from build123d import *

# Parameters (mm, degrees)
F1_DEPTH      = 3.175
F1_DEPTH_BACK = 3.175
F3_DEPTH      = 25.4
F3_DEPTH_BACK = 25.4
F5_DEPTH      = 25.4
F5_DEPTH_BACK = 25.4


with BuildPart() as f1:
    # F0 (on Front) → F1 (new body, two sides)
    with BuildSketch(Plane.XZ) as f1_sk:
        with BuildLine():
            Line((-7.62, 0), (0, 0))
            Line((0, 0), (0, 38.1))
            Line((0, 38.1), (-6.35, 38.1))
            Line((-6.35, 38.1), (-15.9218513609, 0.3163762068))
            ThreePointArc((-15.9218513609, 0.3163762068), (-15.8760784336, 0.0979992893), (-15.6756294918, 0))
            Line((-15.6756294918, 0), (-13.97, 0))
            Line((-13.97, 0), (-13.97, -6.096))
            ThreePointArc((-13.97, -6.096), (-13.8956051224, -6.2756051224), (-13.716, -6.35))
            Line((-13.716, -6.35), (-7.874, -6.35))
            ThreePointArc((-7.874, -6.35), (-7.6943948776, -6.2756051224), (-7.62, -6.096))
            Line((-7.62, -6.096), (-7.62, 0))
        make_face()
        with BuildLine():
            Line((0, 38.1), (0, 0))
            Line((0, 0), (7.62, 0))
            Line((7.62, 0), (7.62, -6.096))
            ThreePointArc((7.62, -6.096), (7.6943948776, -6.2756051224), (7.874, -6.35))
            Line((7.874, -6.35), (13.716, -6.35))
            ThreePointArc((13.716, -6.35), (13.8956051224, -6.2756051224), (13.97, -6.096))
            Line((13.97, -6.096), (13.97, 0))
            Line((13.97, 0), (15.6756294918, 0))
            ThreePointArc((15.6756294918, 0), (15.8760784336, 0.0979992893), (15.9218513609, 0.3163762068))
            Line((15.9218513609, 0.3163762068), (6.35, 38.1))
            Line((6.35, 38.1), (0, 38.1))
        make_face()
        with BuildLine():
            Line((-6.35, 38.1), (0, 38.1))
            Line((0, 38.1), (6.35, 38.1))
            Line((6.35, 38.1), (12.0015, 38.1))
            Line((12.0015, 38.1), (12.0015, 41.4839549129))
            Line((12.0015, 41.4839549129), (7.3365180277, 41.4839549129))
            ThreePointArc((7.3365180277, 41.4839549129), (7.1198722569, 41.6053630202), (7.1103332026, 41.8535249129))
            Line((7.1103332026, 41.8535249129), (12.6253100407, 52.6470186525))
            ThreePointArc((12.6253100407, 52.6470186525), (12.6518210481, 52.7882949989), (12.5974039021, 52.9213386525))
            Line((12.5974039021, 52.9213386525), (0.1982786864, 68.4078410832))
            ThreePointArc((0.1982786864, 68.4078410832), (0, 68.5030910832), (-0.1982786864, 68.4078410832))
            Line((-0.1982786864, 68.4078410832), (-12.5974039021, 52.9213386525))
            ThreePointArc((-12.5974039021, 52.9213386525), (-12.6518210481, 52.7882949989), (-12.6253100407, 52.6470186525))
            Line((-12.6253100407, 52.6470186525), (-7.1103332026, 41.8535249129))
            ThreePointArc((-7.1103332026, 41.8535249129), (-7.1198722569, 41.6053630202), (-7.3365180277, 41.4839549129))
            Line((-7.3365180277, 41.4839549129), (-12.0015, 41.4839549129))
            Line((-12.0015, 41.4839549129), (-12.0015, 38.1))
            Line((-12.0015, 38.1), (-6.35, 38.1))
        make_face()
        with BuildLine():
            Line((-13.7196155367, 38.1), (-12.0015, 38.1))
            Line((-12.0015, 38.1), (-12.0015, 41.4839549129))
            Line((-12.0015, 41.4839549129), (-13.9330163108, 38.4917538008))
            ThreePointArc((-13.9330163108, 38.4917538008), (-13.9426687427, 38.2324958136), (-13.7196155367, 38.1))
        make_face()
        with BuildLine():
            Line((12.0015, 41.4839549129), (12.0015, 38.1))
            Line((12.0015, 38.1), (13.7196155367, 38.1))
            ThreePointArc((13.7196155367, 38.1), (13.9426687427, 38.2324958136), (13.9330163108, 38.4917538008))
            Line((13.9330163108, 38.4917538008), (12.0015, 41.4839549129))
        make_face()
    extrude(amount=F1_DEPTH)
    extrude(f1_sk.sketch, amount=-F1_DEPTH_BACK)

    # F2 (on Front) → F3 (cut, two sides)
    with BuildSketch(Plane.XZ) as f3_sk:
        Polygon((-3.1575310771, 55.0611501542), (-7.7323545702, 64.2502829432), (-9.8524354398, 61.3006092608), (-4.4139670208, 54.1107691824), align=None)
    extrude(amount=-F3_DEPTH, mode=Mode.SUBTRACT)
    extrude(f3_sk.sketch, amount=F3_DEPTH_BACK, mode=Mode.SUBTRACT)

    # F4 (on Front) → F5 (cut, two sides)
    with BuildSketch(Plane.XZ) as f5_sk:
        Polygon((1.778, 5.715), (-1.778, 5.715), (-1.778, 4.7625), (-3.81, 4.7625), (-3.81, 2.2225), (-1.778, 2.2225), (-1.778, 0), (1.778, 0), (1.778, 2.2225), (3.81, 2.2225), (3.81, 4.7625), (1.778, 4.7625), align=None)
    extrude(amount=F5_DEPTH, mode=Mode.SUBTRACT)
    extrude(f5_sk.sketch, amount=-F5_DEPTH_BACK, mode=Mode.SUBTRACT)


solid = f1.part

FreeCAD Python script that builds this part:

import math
import FreeCAD as App
import Part
import Sketcher
Q = App.Units.Quantity

doc = App.newDocument("Part")
params = doc.addObject("Spreadsheet::Sheet", "Params")
for row, (alias, value) in enumerate([
    ("sketch1_radius", "0.01 in"),
    ("sketch1_width", "0.6 in"),
    ("sketch1_width2", "0.23 in"),
    ("sketch1_height", "0.24 in"),
    ("pad1_length", "0.125 in"),
    ("pad1_length2", "0.125 in"),
    ("sketch3_height", "0.1 in"),
    ("sketch3_width", "0.14 in"),
    ("sketch3_width2", "0.08 in"),
], start=1):
    params.set(f"A{row}", alias)
    params.set(f"B{row}", "=" + value)
    params.setAlias(f"B{row}", alias)

body = doc.addObject("PartDesign::Body", "Body")

# Sketch on XZ plane
sketch1 = body.newObject("Sketcher::SketchObject", "Sketch")
sketch1.AttachmentSupport = (doc.getObject("XZ_Plane"), [""])
sketch1.MapMode = "FlatFace"
sketch1.addGeometry([
    Part.LineSegment(App.Vector(-7.62, 0, 0), App.Vector(7.62, 0, 0)),  # 0
    Part.LineSegment(App.Vector(7.62, 0, 0), App.Vector(7.62, -6.096, 0)),  # 1
    Part.ArcOfCircle(Part.Circle(App.Vector(7.874, -6.096, 0), App.Vector(0, 0, 1), 0.254), math.radians(180), math.radians(270)),  # 2
    Part.LineSegment(App.Vector(7.874, -6.35, 0), App.Vector(13.716, -6.35, 0)),  # 3
    Part.ArcOfCircle(Part.Circle(App.Vector(13.716, -6.096, 0), App.Vector(0, 0, 1), 0.254), math.radians(-90), math.radians(0)),  # 4
    Part.LineSegment(App.Vector(13.97, -6.096, 0), App.Vector(13.97, 0, 0)),  # 5
    Part.LineSegment(App.Vector(13.97, 0, 0), App.Vector(15.675629, 0, 0)),  # 6
    Part.ArcOfCircle(Part.Circle(App.Vector(15.675629, 0.254, 0), App.Vector(0, 0, 1), 0.254), math.radians(-90), math.radians(14.215854)),  # 7
    Part.LineSegment(App.Vector(15.921851, 0.316376, 0), App.Vector(6.35, 38.1, 0)),  # 8
    Part.LineSegment(App.Vector(6.35, 38.1, 0), App.Vector(13.719616, 38.1, 0)),  # 9
    Part.ArcOfCircle(Part.Circle(App.Vector(13.719616, 38.354, 0), App.Vector(0, 0, 1), 0.254), math.radians(-90), math.radians(32.842925)),  # 10
    Part.LineSegment(App.Vector(13.933016, 38.491754, 0), App.Vector(12.0015, 41.483955, 0)),  # 11
    Part.LineSegment(App.Vector(12.0015, 41.483955, 0), App.Vector(7.336518, 41.483955, 0)),  # 12
    Part.ArcOfCircle(Part.Circle(App.Vector(7.336518, 41.737955, 0), App.Vector(0, 0, 1), 0.254), math.radians(152.935066), math.radians(270)),  # 13
    Part.LineSegment(App.Vector(7.110333, 41.853525, 0), App.Vector(12.62531, 52.647019, 0)),  # 14
    Part.ArcOfCircle(Part.Circle(App.Vector(12.399125, 52.762589, 0), App.Vector(0, 0, 1), 0.254), math.radians(-27.064934), math.radians(38.682187)),  # 15
    Part.LineSegment(App.Vector(12.597404, 52.921339, 0), App.Vector(0.198279, 68.407841, 0)),  # 16
    Part.ArcOfCircle(Part.Circle(App.Vector(0, 68.249091, 0), App.Vector(0, 0, 1), 0.254), math.radians(38.682188), math.radians(141.317812)),  # 17
    Part.LineSegment(App.Vector(-0.198279, 68.407841, 0), App.Vector(-12.597404, 52.921339, 0)),  # 18
    Part.ArcOfCircle(Part.Circle(App.Vector(-12.399125, 52.762589, 0), App.Vector(0, 0, 1), 0.254), math.radians(141.317813), math.radians(207.064934)),  # 19
    Part.LineSegment(App.Vector(-12.62531, 52.647019, 0), App.Vector(-7.110333, 41.853525, 0)),  # 20
    Part.ArcOfCircle(Part.Circle(App.Vector(-7.336518, 41.737955, 0), App.Vector(0, 0, 1), 0.254), math.radians(-90), math.radians(27.064934)),  # 21
    Part.LineSegment(App.Vector(-7.336518, 41.483955, 0), App.Vector(-12.0015, 41.483955, 0)),  # 22
    Part.LineSegment(App.Vector(-12.0015, 41.483955, 0), App.Vector(-13.933016, 38.491754, 0)),  # 23
    Part.ArcOfCircle(Part.Circle(App.Vector(-13.719616, 38.354, 0), App.Vector(0, 0, 1), 0.254), math.radians(147.157075), math.radians(270)),  # 24
    Part.LineSegment(App.Vector(-13.719616, 38.1, 0), App.Vector(-6.35, 38.1, 0)),  # 25
    Part.LineSegment(App.Vector(-6.35, 38.1, 0), App.Vector(-15.921851, 0.316376, 0)),  # 26
    Part.ArcOfCircle(Part.Circle(App.Vector(-15.675629, 0.254, 0), App.Vector(0, 0, 1), 0.254), math.radians(165.784146), math.radians(270)),  # 27
    Part.LineSegment(App.Vector(-15.675629, 0, 0), App.Vector(-13.97, 0, 0)),  # 28
    Part.LineSegment(App.Vector(-13.97, 0, 0), App.Vector(-13.97, -6.096, 0)),  # 29
    Part.ArcOfCircle(Part.Circle(App.Vector(-13.716, -6.096, 0), App.Vector(0, 0, 1), 0.254), math.radians(180), math.radians(270)),  # 30
    Part.LineSegment(App.Vector(-13.716, -6.35, 0), App.Vector(-7.874, -6.35, 0)),  # 31
    Part.ArcOfCircle(Part.Circle(App.Vector(-7.874, -6.096, 0), App.Vector(0, 0, 1), 0.254), math.radians(-90), math.radians(0)),  # 32
    Part.LineSegment(App.Vector(-7.62, -6.096, 0), App.Vector(-7.62, 0, 0)),  # 33
], False)
sketch1.addConstraint([
    Sketcher.Constraint("Coincident", 0, 2, 1, 1),
    Sketcher.Constraint("Tangent", 1, 2, 2, 1),
    Sketcher.Constraint("Tangent", 2, 2, 3, 1),
    Sketcher.Constraint("Tangent", 3, 2, 4, 1),
    Sketcher.Constraint("Tangent", 4, 2, 5, 1),
    Sketcher.Constraint("Coincident", 5, 2, 6, 1),
    Sketcher.Constraint("Tangent", 6, 2, 7, 1),
    Sketcher.Constraint("Tangent", 7, 2, 8, 1),
    Sketcher.Constraint("Coincident", 8, 2, 9, 1),
    Sketcher.Constraint("Tangent", 9, 2, 10, 1),
    Sketcher.Constraint("Tangent", 10, 2, 11, 1),
    Sketcher.Constraint("Coincident", 11, 2, 12, 1),
    Sketcher.Constraint("Tangent", 12, 2, 13, 2),
    Sketcher.Constraint("Tangent", 13, 1, 14, 1),
    Sketcher.Constraint("Tangent", 14, 2, 15, 1),
    Sketcher.Constraint("Tangent", 15, 2, 16, 1),
    Sketcher.Constraint("Tangent", 16, 2, 17, 1),
    Sketcher.Constraint("Tangent", 17, 2, 18, 1),
    Sketcher.Constraint("Tangent", 18, 2, 19, 1),
    Sketcher.Constraint("Tangent", 19, 2, 20, 1),
    Sketcher.Constraint("Tangent", 20, 2, 21, 2),
    Sketcher.Constraint("Tangent", 21, 1, 22, 1),
    Sketcher.Constraint("Coincident", 22, 2, 23, 1),
    Sketcher.Constraint("Tangent", 23, 2, 24, 1),
    Sketcher.Constraint("Tangent", 24, 2, 25, 1),
    Sketcher.Constraint("Coincident", 25, 2, 26, 1),
    Sketcher.Constraint("Tangent", 26, 2, 27, 1),
    Sketcher.Constraint("Tangent", 27, 2, 28, 1),
    Sketcher.Constraint("Coincident", 28, 2, 29, 1),
    Sketcher.Constraint("Tangent", 29, 2, 30, 1),
    Sketcher.Constraint("Tangent", 30, 2, 31, 1),
    Sketcher.Constraint("Tangent", 31, 2, 32, 1),
    Sketcher.Constraint("Tangent", 32, 2, 33, 1),
    Sketcher.Constraint("Coincident", 33, 2, 0, 1),
    Sketcher.Constraint("Horizontal", 0),
    Sketcher.Constraint("Vertical", 1),
    Sketcher.Constraint("Horizontal", 3),
    Sketcher.Constraint("Vertical", 5),
    Sketcher.Constraint("Horizontal", 6),
    Sketcher.Constraint("Horizontal", 9),
    Sketcher.Constraint("Horizontal", 12),
    Sketcher.Constraint("Horizontal", 22),
    Sketcher.Constraint("Horizontal", 25),
    Sketcher.Constraint("Horizontal", 28),
    Sketcher.Constraint("Vertical", 29),
    Sketcher.Constraint("Horizontal", 31),
    Sketcher.Constraint("Vertical", 33),
    Sketcher.Constraint("Equal", 2, 4),
    Sketcher.Constraint("Equal", 4, 7),
    Sketcher.Constraint("Equal", 7, 10),
    Sketcher.Constraint("Equal", 10, 13),
    Sketcher.Constraint("Equal", 13, 15),
    Sketcher.Constraint("Equal", 15, 17),
    Sketcher.Constraint("Equal", 17, 19),
    Sketcher.Constraint("Equal", 19, 21),
    Sketcher.Constraint("Equal", 21, 24),
    Sketcher.Constraint("Equal", 24, 27),
    Sketcher.Constraint("Equal", 27, 30),
    Sketcher.Constraint("Equal", 30, 32),
    Sketcher.Constraint("Symmetric", 6, 2, 27, 2, -1, 1),
    Sketcher.Constraint("Symmetric", 0, 2, 33, 2, -1, 1),
    Sketcher.Constraint("Symmetric", 15, 3, 19, 3, -2),
    Sketcher.Constraint("Symmetric", 13, 3, 21, 3, -2),
    Sketcher.Constraint("Symmetric", 10, 3, 24, 3, -2),
    Sketcher.Constraint("Symmetric", 4, 3, 30, 3, -2),
    Sketcher.Constraint("PointOnObject", 17, 3, -2),
    Sketcher.Constraint("PointOnObject", 5, 2, -1),
    Sketcher.Constraint("Horizontal", 10, 2, 23, 2),
    Sketcher.Constraint("Horizontal", 7, 2, 26, 2),
    Sketcher.Constraint("Radius", 2, Q("0.01 in")),
    Sketcher.Constraint("DistanceX", 0, 1, 0, 2, Q("0.6 in")),
    Sketcher.Constraint("DistanceX", 3, 1, 3, 2, Q("0.23 in")),
    Sketcher.Constraint("DistanceY", 1, 2, 1, 1, Q("0.24 in")),
    Sketcher.Constraint("DistanceY", -1, 1, 8, 2, Q("1.5 in")),
    Sketcher.Constraint("DistanceX", -1, 1, 8, 2, Q("0.25 in")),
    Sketcher.Constraint("DistanceX", -1, 1, 11, 2, Q("0.4725 in")),
    Sketcher.Constraint("DistanceY", 14, 2, 15, 2, Q("0.0108 in")),
    Sketcher.Constraint("Distance", 16, 19.8386),
    Sketcher.Constraint("DistanceX", 6, 1, 6, 2, 1.705629),
    Sketcher.Constraint("DistanceX", 12, 2, 12, 1, 4.664982),
    Sketcher.Constraint("DistanceX", 10, 3, 10, 2, 0.213401),
    Sketcher.Constraint("DistanceX", 13, 3, 10, 2, 6.596498),
    Sketcher.Constraint("Distance", 14, 12.120828),
])
sketch1.setExpression("Constraints[69]", "Params.sketch1_radius")
sketch1.setExpression("Constraints[70]", "Params.sketch1_width")
sketch1.setExpression("Constraints[71]", "Params.sketch1_width2")
sketch1.setExpression("Constraints[72]", "Params.sketch1_height")
pad1 = body.newObject("PartDesign::Pad", "Pad")
pad1.Profile = sketch1
pad1.Type = "TwoLengths"
pad1.setExpression("Length", "Params.pad1_length")
pad1.setExpression("Length2", "Params.pad1_length2")

# Sketch on XZ plane
sketch2 = body.newObject("Sketcher::SketchObject", "Sketch001")
sketch2.AttachmentSupport = (doc.getObject("XZ_Plane"), [""])
sketch2.MapMode = "FlatFace"
sketch2.addGeometry([
    Part.LineSegment(App.Vector(-3.157531, 55.06115, 0), App.Vector(-7.732355, 64.250283, 0)),
    Part.LineSegment(App.Vector(-7.732355, 64.250283, 0), App.Vector(-9.852435, 61.300609, 0)),
    Part.LineSegment(App.Vector(-9.852435, 61.300609, 0), App.Vector(-4.413967, 54.110769, 0)),
    Part.LineSegment(App.Vector(-4.413967, 54.110769, 0), App.Vector(-3.157531, 55.06115, 0)),
], False)
sketch2.addConstraint([
    Sketcher.Constraint("Coincident", 0, 2, 1, 1),
    Sketcher.Constraint("Coincident", 1, 2, 2, 1),
    Sketcher.Constraint("Coincident", 2, 2, 3, 1),
    Sketcher.Constraint("Coincident", 3, 2, 0, 1),
    Sketcher.Constraint("Perpendicular", 2, 3),
    Sketcher.Constraint("Distance", 0, 10.264949),
    Sketcher.Constraint("Distance", 2, 9.015029),
    Sketcher.Constraint("Distance", 3, 1.575391),
    Sketcher.Constraint("DistanceY", -1, 1, 1, 2, 61.300609),
    Sketcher.Constraint("DistanceY", -1, 1, 2, 2, 54.110769),
    Sketcher.Constraint("DistanceX", 3, 2, -1, 1, 3.157531),
    Sketcher.Constraint("DistanceX", 1, 2, 0, 2, 2.120081),
])
pocket1 = body.newObject("PartDesign::Pocket", "Pocket")
pocket1.Profile = sketch2
pocket1.Type = "ThroughAll"
pocket1.Midplane = True

# Sketch on XZ plane
sketch3 = body.newObject("Sketcher::SketchObject", "Sketch002")
sketch3.AttachmentSupport = (doc.getObject("XZ_Plane"), [""])
sketch3.MapMode = "FlatFace"
sketch3.addGeometry([
    Part.LineSegment(App.Vector(1.778, 5.715, 0), App.Vector(-1.778, 5.715, 0)),  # 0
    Part.LineSegment(App.Vector(-1.778, 5.715, 0), App.Vector(-1.778, 4.7625, 0)),  # 1
    Part.LineSegment(App.Vector(-1.778, 4.7625, 0), App.Vector(-3.81, 4.7625, 0)),  # 2
    Part.LineSegment(App.Vector(-3.81, 4.7625, 0), App.Vector(-3.81, 2.2225, 0)),  # 3
    Part.LineSegment(App.Vector(-3.81, 2.2225, 0), App.Vector(-1.778, 2.2225, 0)),  # 4
    Part.LineSegment(App.Vector(-1.778, 2.2225, 0), App.Vector(-1.778, 0, 0)),  # 5
    Part.LineSegment(App.Vector(-1.778, 0, 0), App.Vector(1.778, 0, 0)),  # 6
    Part.LineSegment(App.Vector(1.778, 0, 0), App.Vector(1.778, 2.2225, 0)),  # 7
    Part.LineSegment(App.Vector(1.778, 2.2225, 0), App.Vector(3.81, 2.2225, 0)),  # 8
    Part.LineSegment(App.Vector(3.81, 2.2225, 0), App.Vector(3.81, 4.7625, 0)),  # 9
    Part.LineSegment(App.Vector(3.81, 4.7625, 0), App.Vector(1.778, 4.7625, 0)),  # 10
    Part.LineSegment(App.Vector(1.778, 4.7625, 0), App.Vector(1.778, 5.715, 0)),  # 11
], False)
sketch3.addConstraint([
    Sketcher.Constraint("Coincident", 0, 2, 1, 1),
    Sketcher.Constraint("Coincident", 1, 2, 2, 1),
    Sketcher.Constraint("Coincident", 2, 2, 3, 1),
    Sketcher.Constraint("Coincident", 3, 2, 4, 1),
    Sketcher.Constraint("Coincident", 4, 2, 5, 1),
    Sketcher.Constraint("Coincident", 5, 2, 6, 1),
    Sketcher.Constraint("Coincident", 6, 2, 7, 1),
    Sketcher.Constraint("Coincident", 7, 2, 8, 1),
    Sketcher.Constraint("Coincident", 8, 2, 9, 1),
    Sketcher.Constraint("Coincident", 9, 2, 10, 1),
    Sketcher.Constraint("Coincident", 10, 2, 11, 1),
    Sketcher.Constraint("Coincident", 11, 2, 0, 1),
    Sketcher.Constraint("Horizontal", 0),
    Sketcher.Constraint("Vertical", 1),
    Sketcher.Constraint("Horizontal", 2),
    Sketcher.Constraint("Vertical", 3),
    Sketcher.Constraint("Horizontal", 4),
    Sketcher.Constraint("Vertical", 5),
    Sketcher.Constraint("Horizontal", 6),
    Sketcher.Constraint("Vertical", 7),
    Sketcher.Constraint("Horizontal", 8),
    Sketcher.Constraint("Vertical", 9),
    Sketcher.Constraint("Horizontal", 10),
    Sketcher.Constraint("Vertical", 11),
    Sketcher.Constraint("Symmetric", 5, 2, 6, 2, -1, 1),
    Sketcher.Constraint("Symmetric", 3, 2, 8, 2, -2),
    Sketcher.Constraint("Symmetric", 1, 2, 10, 2, -2),
    Sketcher.Constraint("Vertical", 1, 2, 4, 2),
    Sketcher.Constraint("DistanceY", 3, 2, 3, 1, Q("0.1 in")),
    Sketcher.Constraint("DistanceX", 0, 2, 0, 1, Q("0.14 in")),
    Sketcher.Constraint("DistanceX", 2, 2, 2, 1, Q("0.08 in")),
    Sketcher.Constraint("DistanceY", 1, 2, 1, 1, Q("0.0375 in")),
    Sketcher.Constraint("DistanceY", 5, 2, 5, 1, Q("0.0875 in")),
])
sketch3.setExpression("Constraints[28]", "Params.sketch3_height")
sketch3.setExpression("Constraints[29]", "Params.sketch3_width")
sketch3.setExpression("Constraints[30]", "Params.sketch3_width2")
pocket2 = body.newObject("PartDesign::Pocket", "Pocket001")
pocket2.Profile = sketch3
pocket2.Type = "ThroughAll"
pocket2.Midplane = True

doc.recompute()
